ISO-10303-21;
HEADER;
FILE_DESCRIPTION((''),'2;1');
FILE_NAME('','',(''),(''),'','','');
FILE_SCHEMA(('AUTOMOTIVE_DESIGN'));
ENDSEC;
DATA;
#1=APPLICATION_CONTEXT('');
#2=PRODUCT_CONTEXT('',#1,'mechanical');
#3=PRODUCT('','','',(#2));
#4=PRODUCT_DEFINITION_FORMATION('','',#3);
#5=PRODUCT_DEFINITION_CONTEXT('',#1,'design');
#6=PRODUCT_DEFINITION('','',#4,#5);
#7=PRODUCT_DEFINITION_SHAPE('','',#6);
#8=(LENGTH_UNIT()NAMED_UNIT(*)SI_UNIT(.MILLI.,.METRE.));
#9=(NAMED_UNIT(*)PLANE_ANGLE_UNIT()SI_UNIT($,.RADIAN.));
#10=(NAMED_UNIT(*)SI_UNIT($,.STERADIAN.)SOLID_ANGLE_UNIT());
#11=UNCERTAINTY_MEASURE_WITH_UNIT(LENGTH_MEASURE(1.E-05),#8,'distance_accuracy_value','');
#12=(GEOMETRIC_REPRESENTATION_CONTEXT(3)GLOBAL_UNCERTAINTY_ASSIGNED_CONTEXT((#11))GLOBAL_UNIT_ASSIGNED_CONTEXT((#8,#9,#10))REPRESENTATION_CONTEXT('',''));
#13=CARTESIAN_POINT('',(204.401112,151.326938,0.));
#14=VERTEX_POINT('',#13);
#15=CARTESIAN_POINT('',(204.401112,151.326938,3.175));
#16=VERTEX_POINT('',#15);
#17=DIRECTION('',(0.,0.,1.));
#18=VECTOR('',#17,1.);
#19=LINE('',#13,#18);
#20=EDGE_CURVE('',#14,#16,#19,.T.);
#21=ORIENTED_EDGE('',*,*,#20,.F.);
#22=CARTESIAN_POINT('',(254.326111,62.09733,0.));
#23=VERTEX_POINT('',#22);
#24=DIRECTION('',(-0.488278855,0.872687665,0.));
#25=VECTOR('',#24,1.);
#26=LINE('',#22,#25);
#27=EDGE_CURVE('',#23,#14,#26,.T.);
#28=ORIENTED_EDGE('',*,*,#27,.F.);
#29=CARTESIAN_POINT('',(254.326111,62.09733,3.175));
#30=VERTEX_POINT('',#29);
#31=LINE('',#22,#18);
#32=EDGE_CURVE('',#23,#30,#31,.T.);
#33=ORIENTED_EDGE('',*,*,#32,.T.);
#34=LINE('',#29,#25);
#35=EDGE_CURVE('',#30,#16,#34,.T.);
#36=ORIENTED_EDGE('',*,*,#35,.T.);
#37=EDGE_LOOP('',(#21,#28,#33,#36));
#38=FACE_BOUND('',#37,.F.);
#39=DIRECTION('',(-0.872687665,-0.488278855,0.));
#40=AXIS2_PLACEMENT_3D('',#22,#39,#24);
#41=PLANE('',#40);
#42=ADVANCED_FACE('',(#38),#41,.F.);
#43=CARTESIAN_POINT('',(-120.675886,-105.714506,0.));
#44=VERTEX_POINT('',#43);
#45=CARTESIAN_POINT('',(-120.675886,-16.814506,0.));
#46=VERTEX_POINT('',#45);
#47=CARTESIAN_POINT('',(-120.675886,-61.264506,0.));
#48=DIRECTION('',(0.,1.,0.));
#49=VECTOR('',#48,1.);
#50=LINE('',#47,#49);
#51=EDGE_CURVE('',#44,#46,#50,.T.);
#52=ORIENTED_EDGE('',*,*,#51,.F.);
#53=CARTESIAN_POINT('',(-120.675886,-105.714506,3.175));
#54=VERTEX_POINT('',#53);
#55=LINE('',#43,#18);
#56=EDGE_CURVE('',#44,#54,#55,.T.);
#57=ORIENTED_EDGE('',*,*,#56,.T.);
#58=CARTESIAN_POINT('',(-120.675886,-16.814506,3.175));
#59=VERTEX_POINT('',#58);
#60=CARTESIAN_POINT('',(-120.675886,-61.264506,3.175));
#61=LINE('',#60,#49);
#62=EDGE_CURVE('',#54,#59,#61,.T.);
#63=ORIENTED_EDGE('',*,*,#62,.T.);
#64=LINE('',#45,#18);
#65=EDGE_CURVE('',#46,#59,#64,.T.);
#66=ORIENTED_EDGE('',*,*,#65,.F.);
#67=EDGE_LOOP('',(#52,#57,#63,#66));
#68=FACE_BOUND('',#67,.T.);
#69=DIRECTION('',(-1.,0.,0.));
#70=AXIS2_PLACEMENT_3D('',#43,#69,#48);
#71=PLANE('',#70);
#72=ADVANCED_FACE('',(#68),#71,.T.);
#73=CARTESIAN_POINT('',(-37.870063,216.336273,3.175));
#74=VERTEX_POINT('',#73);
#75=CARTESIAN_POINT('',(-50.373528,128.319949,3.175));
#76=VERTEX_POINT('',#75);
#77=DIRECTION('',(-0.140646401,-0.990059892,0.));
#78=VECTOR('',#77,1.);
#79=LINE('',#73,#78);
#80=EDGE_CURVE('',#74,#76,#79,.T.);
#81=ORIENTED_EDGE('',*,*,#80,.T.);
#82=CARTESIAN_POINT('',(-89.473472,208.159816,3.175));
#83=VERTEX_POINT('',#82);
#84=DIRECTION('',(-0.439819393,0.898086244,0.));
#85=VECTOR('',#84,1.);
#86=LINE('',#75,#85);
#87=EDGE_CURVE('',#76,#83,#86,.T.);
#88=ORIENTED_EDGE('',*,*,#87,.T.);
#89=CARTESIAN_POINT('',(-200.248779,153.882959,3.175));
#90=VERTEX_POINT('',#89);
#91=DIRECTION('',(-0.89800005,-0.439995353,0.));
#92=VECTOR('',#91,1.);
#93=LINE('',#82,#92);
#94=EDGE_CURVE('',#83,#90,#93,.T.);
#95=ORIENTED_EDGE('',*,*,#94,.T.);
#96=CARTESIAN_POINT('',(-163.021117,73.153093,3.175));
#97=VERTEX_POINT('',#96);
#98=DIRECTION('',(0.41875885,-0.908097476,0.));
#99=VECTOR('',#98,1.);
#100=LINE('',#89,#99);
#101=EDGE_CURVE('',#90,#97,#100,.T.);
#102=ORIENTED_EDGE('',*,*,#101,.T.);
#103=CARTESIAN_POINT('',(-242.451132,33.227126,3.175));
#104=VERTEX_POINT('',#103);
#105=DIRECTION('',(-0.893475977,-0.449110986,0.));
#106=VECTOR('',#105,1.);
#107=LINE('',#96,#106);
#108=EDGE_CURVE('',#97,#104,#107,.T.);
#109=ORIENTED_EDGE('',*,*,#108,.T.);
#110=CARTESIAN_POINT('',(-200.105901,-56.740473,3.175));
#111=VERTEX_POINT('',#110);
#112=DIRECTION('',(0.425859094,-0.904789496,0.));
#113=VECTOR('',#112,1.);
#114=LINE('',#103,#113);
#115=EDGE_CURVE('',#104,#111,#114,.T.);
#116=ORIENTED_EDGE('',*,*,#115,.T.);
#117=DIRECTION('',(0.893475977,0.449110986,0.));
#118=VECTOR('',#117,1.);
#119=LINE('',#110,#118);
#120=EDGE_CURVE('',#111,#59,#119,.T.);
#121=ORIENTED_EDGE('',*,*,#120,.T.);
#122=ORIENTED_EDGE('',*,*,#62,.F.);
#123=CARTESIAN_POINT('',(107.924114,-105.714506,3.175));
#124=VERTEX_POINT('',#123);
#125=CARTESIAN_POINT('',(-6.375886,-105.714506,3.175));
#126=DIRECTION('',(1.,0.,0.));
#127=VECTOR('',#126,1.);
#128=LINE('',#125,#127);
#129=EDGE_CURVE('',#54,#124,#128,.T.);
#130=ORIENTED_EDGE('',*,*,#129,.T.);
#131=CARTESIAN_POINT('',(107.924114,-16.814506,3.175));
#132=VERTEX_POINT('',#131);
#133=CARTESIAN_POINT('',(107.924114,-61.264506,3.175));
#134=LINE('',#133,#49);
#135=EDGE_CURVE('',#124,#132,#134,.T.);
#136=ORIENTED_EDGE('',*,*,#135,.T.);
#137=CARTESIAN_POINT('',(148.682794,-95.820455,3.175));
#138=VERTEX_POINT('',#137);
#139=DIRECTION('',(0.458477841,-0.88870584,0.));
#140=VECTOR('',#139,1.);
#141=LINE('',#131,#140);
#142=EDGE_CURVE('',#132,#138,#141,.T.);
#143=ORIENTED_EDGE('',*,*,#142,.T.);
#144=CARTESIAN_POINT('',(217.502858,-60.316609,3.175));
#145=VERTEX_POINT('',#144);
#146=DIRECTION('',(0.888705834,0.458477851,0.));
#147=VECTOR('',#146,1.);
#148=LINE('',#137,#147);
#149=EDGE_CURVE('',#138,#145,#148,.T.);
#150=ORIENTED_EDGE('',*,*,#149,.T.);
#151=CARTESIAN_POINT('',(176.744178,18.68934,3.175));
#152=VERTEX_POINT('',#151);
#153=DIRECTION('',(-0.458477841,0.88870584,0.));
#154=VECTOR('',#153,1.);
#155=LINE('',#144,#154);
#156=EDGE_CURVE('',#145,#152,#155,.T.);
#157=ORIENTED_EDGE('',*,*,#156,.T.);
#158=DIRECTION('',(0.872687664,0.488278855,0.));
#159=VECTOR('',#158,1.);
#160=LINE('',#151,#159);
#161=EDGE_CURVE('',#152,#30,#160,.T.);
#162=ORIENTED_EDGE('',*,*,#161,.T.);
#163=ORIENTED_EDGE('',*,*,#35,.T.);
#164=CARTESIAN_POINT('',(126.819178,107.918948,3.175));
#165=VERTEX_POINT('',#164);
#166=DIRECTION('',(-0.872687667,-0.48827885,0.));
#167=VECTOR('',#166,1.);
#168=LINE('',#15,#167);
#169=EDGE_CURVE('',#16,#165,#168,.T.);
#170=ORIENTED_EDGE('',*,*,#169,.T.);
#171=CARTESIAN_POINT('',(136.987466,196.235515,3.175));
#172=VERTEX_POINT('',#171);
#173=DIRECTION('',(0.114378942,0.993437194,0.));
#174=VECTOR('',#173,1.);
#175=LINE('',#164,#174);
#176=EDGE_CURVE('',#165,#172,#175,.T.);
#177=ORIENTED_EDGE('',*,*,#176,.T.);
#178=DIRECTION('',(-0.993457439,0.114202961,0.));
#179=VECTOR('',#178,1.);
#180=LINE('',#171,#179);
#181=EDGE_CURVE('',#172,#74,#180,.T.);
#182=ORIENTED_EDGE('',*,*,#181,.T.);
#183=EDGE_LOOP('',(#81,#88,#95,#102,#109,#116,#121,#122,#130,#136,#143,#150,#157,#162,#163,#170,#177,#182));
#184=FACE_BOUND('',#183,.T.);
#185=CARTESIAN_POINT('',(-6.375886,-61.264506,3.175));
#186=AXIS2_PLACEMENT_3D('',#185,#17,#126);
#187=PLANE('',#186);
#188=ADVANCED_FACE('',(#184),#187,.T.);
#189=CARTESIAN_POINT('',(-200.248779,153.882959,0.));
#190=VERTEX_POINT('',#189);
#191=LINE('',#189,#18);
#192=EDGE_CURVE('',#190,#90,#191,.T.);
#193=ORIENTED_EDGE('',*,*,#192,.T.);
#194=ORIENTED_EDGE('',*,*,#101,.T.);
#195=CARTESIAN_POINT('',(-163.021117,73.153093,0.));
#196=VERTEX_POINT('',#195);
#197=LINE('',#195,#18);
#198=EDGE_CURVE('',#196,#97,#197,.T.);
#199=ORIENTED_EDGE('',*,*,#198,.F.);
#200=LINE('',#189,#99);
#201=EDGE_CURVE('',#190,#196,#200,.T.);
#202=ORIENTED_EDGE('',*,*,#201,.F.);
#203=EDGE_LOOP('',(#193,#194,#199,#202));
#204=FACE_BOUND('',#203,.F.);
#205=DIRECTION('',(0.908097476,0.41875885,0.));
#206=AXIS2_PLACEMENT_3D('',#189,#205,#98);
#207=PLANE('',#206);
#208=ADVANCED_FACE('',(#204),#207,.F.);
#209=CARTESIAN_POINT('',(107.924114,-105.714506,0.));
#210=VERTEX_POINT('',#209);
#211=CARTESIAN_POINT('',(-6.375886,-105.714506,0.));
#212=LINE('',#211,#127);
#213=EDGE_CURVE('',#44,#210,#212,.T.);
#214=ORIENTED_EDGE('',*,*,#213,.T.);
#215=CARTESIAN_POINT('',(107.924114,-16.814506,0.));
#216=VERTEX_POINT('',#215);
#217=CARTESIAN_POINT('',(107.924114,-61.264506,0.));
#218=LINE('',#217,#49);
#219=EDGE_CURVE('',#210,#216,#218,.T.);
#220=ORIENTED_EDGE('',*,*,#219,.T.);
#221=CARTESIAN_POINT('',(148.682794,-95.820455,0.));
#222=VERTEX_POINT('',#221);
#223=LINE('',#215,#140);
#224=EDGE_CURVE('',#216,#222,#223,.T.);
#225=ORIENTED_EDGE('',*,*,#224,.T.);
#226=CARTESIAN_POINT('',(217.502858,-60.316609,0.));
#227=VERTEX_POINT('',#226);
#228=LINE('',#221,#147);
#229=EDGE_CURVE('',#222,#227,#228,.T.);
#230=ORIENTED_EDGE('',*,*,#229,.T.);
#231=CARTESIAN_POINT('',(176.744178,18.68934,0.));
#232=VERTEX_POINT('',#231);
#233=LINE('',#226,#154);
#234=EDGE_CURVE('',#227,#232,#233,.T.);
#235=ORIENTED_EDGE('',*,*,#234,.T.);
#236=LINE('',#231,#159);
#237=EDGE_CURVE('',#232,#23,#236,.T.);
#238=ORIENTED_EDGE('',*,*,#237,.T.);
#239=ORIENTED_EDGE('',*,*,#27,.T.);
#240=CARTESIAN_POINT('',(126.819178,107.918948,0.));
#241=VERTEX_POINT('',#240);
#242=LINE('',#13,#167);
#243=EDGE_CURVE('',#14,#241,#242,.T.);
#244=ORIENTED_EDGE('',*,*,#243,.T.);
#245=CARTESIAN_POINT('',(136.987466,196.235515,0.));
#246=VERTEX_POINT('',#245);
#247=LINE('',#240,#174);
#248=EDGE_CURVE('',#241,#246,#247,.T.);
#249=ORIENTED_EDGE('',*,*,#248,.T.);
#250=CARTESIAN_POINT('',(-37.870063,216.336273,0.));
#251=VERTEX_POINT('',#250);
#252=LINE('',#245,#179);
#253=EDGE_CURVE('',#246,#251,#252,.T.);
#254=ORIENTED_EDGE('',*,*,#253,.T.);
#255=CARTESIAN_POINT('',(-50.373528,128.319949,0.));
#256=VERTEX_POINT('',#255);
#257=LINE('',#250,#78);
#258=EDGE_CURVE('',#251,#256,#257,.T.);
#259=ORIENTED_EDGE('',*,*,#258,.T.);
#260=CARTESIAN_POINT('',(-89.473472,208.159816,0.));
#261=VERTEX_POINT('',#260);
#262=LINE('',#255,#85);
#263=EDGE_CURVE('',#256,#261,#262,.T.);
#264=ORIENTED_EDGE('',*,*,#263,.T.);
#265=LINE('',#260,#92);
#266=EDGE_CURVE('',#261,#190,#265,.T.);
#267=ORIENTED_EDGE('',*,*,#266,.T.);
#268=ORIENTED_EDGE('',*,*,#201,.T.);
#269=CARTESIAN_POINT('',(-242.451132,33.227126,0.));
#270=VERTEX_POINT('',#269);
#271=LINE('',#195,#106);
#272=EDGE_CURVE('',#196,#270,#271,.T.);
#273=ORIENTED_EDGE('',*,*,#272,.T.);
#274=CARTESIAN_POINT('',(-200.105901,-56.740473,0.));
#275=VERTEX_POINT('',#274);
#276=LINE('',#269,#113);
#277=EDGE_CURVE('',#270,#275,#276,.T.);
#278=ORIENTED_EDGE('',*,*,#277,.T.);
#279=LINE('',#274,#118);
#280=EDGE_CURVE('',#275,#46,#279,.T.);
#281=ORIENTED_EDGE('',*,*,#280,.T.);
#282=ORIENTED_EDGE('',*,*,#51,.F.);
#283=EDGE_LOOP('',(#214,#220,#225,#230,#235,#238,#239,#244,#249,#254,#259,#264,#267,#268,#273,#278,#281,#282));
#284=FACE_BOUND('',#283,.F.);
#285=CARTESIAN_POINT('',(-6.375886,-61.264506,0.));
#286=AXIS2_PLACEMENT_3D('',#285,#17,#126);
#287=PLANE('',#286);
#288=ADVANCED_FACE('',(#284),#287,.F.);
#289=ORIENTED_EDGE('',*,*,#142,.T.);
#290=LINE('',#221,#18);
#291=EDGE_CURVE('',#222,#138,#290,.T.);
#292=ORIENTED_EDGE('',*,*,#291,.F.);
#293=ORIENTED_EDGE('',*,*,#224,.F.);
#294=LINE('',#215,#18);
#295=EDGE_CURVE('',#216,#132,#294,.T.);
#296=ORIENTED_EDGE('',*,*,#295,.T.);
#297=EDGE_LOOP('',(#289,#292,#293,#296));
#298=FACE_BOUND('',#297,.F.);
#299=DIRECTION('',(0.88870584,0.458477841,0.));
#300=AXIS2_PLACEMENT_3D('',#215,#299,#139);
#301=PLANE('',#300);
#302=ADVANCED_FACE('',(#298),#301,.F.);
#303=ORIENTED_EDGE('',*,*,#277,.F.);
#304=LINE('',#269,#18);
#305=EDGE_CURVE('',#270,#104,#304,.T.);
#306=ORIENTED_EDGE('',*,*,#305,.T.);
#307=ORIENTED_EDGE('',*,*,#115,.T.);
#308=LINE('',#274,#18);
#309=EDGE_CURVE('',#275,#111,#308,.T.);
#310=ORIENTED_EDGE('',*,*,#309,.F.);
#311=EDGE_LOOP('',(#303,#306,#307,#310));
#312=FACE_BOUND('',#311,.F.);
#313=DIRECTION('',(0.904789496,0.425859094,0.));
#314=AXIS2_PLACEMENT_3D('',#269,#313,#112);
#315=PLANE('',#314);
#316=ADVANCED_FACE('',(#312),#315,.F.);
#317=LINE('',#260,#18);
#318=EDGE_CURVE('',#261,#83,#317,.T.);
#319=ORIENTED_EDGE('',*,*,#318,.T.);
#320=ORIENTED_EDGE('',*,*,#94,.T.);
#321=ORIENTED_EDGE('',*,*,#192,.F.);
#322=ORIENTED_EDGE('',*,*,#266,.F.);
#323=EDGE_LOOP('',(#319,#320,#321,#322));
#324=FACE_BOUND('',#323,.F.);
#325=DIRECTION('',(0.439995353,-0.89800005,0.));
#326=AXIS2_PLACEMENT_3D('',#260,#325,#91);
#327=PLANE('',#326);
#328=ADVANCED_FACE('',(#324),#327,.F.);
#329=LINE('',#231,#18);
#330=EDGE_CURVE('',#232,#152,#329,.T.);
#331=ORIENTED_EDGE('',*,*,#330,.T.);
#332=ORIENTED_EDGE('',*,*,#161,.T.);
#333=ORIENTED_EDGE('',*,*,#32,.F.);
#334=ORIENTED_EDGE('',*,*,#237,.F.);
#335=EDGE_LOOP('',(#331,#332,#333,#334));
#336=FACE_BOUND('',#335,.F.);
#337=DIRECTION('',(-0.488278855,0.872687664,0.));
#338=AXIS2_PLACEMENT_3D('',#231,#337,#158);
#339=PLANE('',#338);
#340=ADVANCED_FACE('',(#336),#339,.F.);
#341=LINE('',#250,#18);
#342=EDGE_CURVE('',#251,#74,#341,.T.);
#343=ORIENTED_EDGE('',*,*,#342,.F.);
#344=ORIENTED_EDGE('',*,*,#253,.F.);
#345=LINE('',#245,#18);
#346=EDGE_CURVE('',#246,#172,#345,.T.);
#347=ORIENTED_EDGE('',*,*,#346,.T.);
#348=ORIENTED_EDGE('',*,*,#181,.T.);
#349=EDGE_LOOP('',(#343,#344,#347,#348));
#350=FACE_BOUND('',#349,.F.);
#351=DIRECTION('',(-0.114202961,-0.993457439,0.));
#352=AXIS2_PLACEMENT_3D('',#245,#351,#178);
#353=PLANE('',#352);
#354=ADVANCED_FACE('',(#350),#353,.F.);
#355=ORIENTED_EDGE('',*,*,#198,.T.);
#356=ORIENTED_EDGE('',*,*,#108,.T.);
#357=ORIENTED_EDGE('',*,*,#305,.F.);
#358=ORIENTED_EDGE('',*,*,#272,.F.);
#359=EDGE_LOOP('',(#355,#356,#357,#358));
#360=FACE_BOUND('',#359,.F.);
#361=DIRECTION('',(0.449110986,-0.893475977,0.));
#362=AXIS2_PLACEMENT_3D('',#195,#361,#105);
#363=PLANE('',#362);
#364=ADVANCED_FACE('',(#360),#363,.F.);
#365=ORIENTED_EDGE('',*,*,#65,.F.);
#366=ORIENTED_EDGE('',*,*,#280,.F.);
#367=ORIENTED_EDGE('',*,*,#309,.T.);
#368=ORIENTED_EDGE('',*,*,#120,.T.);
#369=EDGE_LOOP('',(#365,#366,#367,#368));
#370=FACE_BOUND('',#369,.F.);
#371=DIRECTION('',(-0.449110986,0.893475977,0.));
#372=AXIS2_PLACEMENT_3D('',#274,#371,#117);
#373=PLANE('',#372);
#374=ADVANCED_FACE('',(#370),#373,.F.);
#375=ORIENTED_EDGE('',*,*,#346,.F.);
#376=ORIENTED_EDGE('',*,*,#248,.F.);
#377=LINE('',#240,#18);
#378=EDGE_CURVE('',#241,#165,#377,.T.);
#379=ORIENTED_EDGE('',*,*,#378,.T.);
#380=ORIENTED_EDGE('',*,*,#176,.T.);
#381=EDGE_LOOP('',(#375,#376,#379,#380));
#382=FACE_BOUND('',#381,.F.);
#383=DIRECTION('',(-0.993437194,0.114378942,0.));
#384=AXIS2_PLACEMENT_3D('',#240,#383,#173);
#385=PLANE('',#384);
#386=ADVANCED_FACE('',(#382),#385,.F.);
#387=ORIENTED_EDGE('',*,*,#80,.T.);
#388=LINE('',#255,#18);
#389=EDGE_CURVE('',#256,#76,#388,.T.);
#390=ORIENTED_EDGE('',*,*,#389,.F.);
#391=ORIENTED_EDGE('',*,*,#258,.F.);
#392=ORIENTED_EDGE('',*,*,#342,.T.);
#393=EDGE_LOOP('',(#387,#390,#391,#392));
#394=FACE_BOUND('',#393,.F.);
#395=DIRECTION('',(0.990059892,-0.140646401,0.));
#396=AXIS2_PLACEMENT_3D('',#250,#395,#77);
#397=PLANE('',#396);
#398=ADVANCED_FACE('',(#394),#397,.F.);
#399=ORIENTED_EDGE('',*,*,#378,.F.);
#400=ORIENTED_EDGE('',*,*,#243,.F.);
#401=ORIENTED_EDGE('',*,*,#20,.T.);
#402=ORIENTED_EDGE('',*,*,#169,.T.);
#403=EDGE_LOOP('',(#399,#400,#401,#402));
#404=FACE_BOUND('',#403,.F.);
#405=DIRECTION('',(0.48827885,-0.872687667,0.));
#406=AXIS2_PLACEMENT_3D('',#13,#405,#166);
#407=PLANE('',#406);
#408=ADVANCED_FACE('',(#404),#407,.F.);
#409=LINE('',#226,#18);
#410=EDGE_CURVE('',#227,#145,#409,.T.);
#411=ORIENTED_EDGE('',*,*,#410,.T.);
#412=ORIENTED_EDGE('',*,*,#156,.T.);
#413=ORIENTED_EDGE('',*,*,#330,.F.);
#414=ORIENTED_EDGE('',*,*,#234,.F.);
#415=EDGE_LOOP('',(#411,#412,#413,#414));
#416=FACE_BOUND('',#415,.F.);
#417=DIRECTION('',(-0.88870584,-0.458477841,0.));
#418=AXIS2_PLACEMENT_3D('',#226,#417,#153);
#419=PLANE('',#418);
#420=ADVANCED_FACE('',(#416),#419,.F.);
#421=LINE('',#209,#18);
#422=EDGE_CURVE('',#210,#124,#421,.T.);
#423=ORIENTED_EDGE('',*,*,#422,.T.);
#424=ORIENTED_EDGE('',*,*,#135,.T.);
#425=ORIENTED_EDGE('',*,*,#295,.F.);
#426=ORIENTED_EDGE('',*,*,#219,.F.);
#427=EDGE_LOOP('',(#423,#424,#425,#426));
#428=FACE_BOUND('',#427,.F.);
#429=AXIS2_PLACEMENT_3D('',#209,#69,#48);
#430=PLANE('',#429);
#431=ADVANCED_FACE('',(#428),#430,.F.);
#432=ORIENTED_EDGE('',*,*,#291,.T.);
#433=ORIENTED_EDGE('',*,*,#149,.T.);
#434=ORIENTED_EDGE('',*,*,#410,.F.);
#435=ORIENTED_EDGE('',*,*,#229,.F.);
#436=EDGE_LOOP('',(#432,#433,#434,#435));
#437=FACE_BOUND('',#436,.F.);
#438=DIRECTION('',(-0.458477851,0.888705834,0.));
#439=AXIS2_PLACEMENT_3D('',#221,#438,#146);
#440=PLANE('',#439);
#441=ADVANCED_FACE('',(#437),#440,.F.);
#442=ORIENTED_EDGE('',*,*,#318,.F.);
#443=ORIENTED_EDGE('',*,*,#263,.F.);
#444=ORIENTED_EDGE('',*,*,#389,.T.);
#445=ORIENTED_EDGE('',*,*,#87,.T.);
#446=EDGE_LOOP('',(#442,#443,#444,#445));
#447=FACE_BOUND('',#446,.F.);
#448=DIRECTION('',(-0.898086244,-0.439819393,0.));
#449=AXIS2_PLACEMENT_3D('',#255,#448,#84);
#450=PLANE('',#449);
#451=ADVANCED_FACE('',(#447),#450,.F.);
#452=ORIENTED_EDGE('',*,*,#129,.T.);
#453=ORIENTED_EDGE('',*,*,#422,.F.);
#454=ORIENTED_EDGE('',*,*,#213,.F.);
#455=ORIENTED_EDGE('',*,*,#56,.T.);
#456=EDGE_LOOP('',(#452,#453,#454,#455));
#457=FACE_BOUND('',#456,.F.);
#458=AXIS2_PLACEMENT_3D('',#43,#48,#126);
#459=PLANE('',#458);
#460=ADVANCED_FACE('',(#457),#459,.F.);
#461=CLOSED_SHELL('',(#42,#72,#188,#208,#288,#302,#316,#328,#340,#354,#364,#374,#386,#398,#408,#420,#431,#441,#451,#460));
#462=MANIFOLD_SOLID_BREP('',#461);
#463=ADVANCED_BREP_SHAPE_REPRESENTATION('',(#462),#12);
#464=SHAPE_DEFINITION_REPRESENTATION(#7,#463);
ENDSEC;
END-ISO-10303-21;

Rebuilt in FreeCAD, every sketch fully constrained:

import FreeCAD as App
import Part
import Sketcher
from FreeCAD import Vector
Q = App.Units.Quantity


def add_polygon(sketch, points):
    """Adds a closed chain of lines whose ends are joined by coincident constraints."""
    first, n = sketch.GeometryCount, len(points)
    for a, b in zip(points, points[1:] + points[:1]):
        sketch.addGeometry(Part.LineSegment(App.Vector(*a, 0), App.Vector(*b, 0)), False)
    for i in range(n):
        sketch.addConstraint(Sketcher.Constraint("Coincident", first + i, 2, first + (i + 1) % n, 1))

doc = App.newDocument("Part")
body = doc.addObject("PartDesign::Body", "Body")

# Sketch on XY plane
sketch1 = doc.addObject("Sketcher::SketchObject", "Sketch")
body.addObject(sketch1)
sketch1.AttachmentSupport = (doc.XY_Plane, [""])
sketch1.MapMode = "FlatFace"
add_polygon(sketch1, [(-121, -17), (-121, -106), (108, -106), (108, -17), (149, -96), (218, -60), (177, 19), (254, 62), (204, 151), (127, 108), (137, 196), (-38, 216), (-50, 128), (-89, 208), (-200, 154), (-163, 73), (-242, 33), (-200, -57)])  # lines 0-17
sketch1.addConstraint([
    Sketcher.Constraint("Vertical", 0),
    Sketcher.Constraint("Horizontal", 1),
    Sketcher.Constraint("Vertical", 2),
    Sketcher.Constraint("Perpendicular", 3, 4),
    Sketcher.Constraint("Perpendicular", 4, 5),
    Sketcher.Constraint("Perpendicular", 6, 7),
    Sketcher.Constraint("Perpendicular", 7, 8),
    Sketcher.Constraint("Parallel", 15, 17),
    Sketcher.Constraint("Horizontal", 2, 2, 17, 2),
    Sketcher.Constraint("Equal", 3, 5),
    Sketcher.Constraint("Equal", 5, 6),
    Sketcher.Constraint("Equal", 6, 8),
    Sketcher.Constraint("Equal", 8, 9),
    Sketcher.Constraint("Equal", 9, 11),
    Sketcher.Constraint("Equal", 11, 12),
    Sketcher.Constraint("Equal", 12, 14),
    Sketcher.Constraint("Equal", 14, 15),
    Sketcher.Constraint("Equal", 15, 17),
    Sketcher.Constraint("DistanceX", 1, 1, 1, 2, Q("9 in")),
    Sketcher.Constraint("DistanceY", 0, 2, 0, 1, Q("3.5 in")),
    Sketcher.Constraint("Distance", 3, Q("3.5 in")),
    Sketcher.Constraint("DistanceX", 2, 2, 8, 2, Q("0.7439002 in")),
    Sketcher.Constraint("Distance", 7, 102.2469),
    Sketcher.Constraint("DistanceX", 16, 2, -1, 1, 200.105901),
    Sketcher.Constraint("DistanceX", 7, 2, 6, 2, 49.924999),
    Sketcher.Constraint("DistanceY", 8, 2, 11, 2, 20.401001),
    Sketcher.Constraint("DistanceY", 9, 2, 12, 2, 11.924301),
    Sketcher.Constraint("DistanceY", 0, 2, 14, 2, 178.867599),
    Sketcher.Constraint("Distance", 4, 77.438519),
    Sketcher.Constraint("Distance", 10, 176.009079),
    Sketcher.Constraint("Distance", 16, 99.43484),
    Sketcher.Constraint("DistanceX", -1, 1, 4, 2, 217.502858),
    Sketcher.Constraint("DistanceY", 4, 2, -1, 1, 60.316609),
    Sketcher.Constraint("DistanceX", 12, 2, -1, 1, 89.473472),
    Sketcher.Constraint("DistanceX", 13, 2, -1, 1, 200.248779),
    Sketcher.Constraint("DistanceX", 8, 2, 9, 2, 10.168288),
])
pad1 = doc.addObject("PartDesign::Pad", "Pad")
body.addObject(pad1)
pad1.Profile = sketch1
pad1.Length = Q("0.125 in")

doc.recompute()
